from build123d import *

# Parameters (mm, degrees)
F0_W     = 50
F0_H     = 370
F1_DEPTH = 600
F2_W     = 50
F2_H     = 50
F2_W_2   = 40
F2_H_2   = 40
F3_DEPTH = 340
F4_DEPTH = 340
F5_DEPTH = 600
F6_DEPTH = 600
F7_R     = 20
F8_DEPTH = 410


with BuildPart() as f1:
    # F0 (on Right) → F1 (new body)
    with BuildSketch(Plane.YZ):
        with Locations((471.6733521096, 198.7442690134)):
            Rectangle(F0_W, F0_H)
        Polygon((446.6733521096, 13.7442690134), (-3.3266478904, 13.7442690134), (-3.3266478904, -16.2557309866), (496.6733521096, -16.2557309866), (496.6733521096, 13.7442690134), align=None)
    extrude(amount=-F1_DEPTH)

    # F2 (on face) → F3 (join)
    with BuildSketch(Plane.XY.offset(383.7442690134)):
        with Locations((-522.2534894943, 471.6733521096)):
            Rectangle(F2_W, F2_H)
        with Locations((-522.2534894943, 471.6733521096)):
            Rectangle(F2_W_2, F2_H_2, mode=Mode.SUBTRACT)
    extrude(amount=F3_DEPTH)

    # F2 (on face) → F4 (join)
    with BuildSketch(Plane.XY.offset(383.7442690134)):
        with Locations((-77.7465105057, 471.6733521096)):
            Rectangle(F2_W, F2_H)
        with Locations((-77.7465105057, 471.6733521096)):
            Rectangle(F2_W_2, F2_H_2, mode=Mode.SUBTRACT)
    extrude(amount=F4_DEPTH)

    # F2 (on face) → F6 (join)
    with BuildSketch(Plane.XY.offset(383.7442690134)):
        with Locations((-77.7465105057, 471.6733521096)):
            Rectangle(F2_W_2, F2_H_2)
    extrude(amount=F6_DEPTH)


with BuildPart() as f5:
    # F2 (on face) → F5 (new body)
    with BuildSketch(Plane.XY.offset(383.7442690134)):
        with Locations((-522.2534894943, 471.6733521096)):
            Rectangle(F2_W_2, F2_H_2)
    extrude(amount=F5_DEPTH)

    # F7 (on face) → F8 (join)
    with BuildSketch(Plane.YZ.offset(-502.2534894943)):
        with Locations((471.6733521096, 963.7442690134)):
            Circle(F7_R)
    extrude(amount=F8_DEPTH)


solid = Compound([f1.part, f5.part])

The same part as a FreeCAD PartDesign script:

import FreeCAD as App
import Part
import Sketcher

V = App.Vector


def add_polygon(sketch, points):
    """Adds a closed chain of lines whose ends are joined by coincident constraints."""
    first, n = sketch.GeometryCount, len(points)
    for a, b in zip(points, points[1:] + points[:1]):
        sketch.addGeometry(Part.LineSegment(App.Vector(*a, 0), App.Vector(*b, 0)), False)
    for i in range(n):
        sketch.addConstraint(Sketcher.Constraint("Coincident", first + i, 2, first + (i + 1) % n, 1))

doc = App.newDocument("Part")
body = doc.addObject("PartDesign::Body", "Body")

sketch1 = doc.addObject("Sketcher::SketchObject", "Sketch")
body.addObject(sketch1)
sketch1.AttachmentSupport = (doc.YZ_Plane, [""])
sketch1.MapMode = "FlatFace"
add_polygon(sketch1, [(447, 384), (447, 14), (-3, 14), (-3, -16), (497, -16), (497, 384)])
sketch1.addConstraint([
    Sketcher.Constraint("Vertical", 0),
    Sketcher.Constraint("Horizontal", 1),
    Sketcher.Constraint("Vertical", 2),
    Sketcher.Constraint("Horizontal", 3),
    Sketcher.Constraint("Vertical", 4),
    Sketcher.Constraint("Horizontal", 5),
    Sketcher.Constraint("DistanceX", 1, 2, 1, 1, 450.0),
    Sketcher.Constraint("DistanceX", 3, 1, 3, 2, 500.0),
    Sketcher.Constraint("DistanceY", 0, 2, 0, 1, 370.0),
    Sketcher.Constraint("DistanceY", 2, 2, 2, 1, 30.0),
    Sketcher.Constraint("DistanceY", -1, 1, 0, 2, 13.744269),
    Sketcher.Constraint("DistanceX", -1, 1, 0, 2, 446.673352),
])
pad1 = doc.addObject("PartDesign::Pad", "Pad")
body.addObject(pad1)
pad1.Profile = sketch1
pad1.Length = 600
pad1.Reversed = True

sketch2 = doc.addObject("Sketcher::SketchObject", "Sketch001")
body.addObject(sketch2)
sketch2.AttachmentSupport = (doc.XY_Plane, [""])
sketch2.MapMode = "FlatFace"
sketch2.AttachmentOffset = App.Placement(V(0, 0, 383.744269), App.Rotation())
add_polygon(sketch2, [(-547, 497), (-547, 447), (-497, 447), (-497, 497)])
add_polygon(sketch2, [(-502, 452), (-542, 452), (-542, 492), (-502, 492)])
sketch2.addConstraint([
    Sketcher.Constraint("Vertical", 0),
    Sketcher.Constraint("Horizontal", 1),
    Sketcher.Constraint("Vertical", 2),
    Sketcher.Constraint("Horizontal", 3),
    Sketcher.Constraint("Horizontal", 4),
    Sketcher.Constraint("Vertical", 5),
    Sketcher.Constraint("Horizontal", 6),
    Sketcher.Constraint("Vertical", 7),
    Sketcher.Constraint("Equal", 3, 0),
    Sketcher.Constraint("Equal", 6, 5),
    Sketcher.Constraint("DistanceX", 1, 1, 1, 2, 50.0),
    Sketcher.Constraint("DistanceX", 4, 2, 4, 1, 40.0),
    Sketcher.Constraint("DistanceX", 0, 2, 4, 2, 5.0),
    Sketcher.Constraint("DistanceY", 0, 2, 4, 2, 5.0),
    Sketcher.Constraint("DistanceX", 0, 2, -1, 1, 547.253489),
    Sketcher.Constraint("DistanceY", -1, 1, 0, 2, 446.673352),
])
pad2 = doc.addObject("PartDesign::Pad", "Pad001")
body.addObject(pad2)
pad2.Profile = sketch2
pad2.Length = 340

sketch3 = doc.addObject("Sketcher::SketchObject", "Sketch002")
body.addObject(sketch3)
sketch3.AttachmentSupport = (doc.XY_Plane, [""])
sketch3.MapMode = "FlatFace"
sketch3.AttachmentOffset = App.Placement(V(0, 0, 383.744269), App.Rotation())
add_polygon(sketch3, [(-103, 497), (-103, 447), (-53, 447), (-53, 497)])
add_polygon(sketch3, [(-58, 452), (-98, 452), (-98, 492), (-58, 492)])
sketch3.addConstraint([
    Sketcher.Constraint("Vertical", 0),
    Sketcher.Constraint("Horizontal", 1),
    Sketcher.Constraint("Vertical", 2),
    Sketcher.Constraint("Horizontal", 3),
    Sketcher.Constraint("Horizontal", 4),
    Sketcher.Constraint("Vertical", 5),
    Sketcher.Constraint("Horizontal", 6),
    Sketcher.Constraint("Vertical", 7),
    Sketcher.Constraint("Equal", 3, 0),
    Sketcher.Constraint("Equal", 6, 5),
    Sketcher.Constraint("DistanceX", 1, 1, 1, 2, 50.0),
    Sketcher.Constraint("DistanceX", 4, 2, 4, 1, 40.0),
    Sketcher.Constraint("DistanceX", 0, 2, 4, 2, 5.0),
    Sketcher.Constraint("DistanceY", 0, 2, 4, 2, 5.0),
    Sketcher.Constraint("DistanceX", 0, 2, -1, 1, 102.746511),
    Sketcher.Constraint("DistanceY", -1, 1, 0, 2, 446.673352),
])
pad3 = doc.addObject("PartDesign::Pad", "Pad002")
body.addObject(pad3)
pad3.Profile = sketch3
pad3.Length = 340

sketch4 = doc.addObject("Sketcher::SketchObject", "Sketch003")
body.addObject(sketch4)
sketch4.AttachmentSupport = (doc.XY_Plane, [""])
sketch4.MapMode = "FlatFace"
sketch4.AttachmentOffset = App.Placement(V(0, 0, 383.744269), App.Rotation())
add_polygon(sketch4, [(-98, 492), (-98, 452), (-58, 452), (-58, 492)])
sketch4.addConstraint([
    Sketcher.Constraint("Vertical", 0),
    Sketcher.Constraint("Horizontal", 1),
    Sketcher.Constraint("Vertical", 2),
    Sketcher.Constraint("Horizontal", 3),
    Sketcher.Constraint("Equal", 3, 0),
    Sketcher.Constraint("DistanceX", 1, 1, 1, 2, 40.0),
    Sketcher.Constraint("DistanceX", 0, 2, -1, 1, 97.746511),
    Sketcher.Constraint("DistanceY", -1, 1, 0, 2, 451.673352),
])
pad4 = doc.addObject("PartDesign::Pad", "Pad003")
body.addObject(pad4)
pad4.Profile = sketch4
pad4.Length = 600
body2 = doc.addObject("PartDesign::Body", "Body001")

sketch5 = doc.addObject("Sketcher::SketchObject", "Sketch004")
body2.addObject(sketch5)
sketch5.AttachmentSupport = (doc.getObject("XY_Plane001"), [""])
sketch5.MapMode = "FlatFace"
sketch5.AttachmentOffset = App.Placement(V(0, 0, 383.744269), App.Rotation())
add_polygon(sketch5, [(-542, 492), (-542, 452), (-502, 452), (-502, 492)])
sketch5.addConstraint([
    Sketcher.Constraint("Vertical", 0),
    Sketcher.Constraint("Horizontal", 1),
    Sketcher.Constraint("Vertical", 2),
    Sketcher.Constraint("Horizontal", 3),
    Sketcher.Constraint("Equal", 3, 0),
    Sketcher.Constraint("DistanceX", 1, 1, 1, 2, 40.0),
    Sketcher.Constraint("DistanceX", 0, 2, -1, 1, 542.253489),
    Sketcher.Constraint("DistanceY", -1, 1, 0, 2, 451.673352),
])
pad5 = doc.addObject("PartDesign::Pad", "Pad004")
body2.addObject(pad5)
pad5.Profile = sketch5
pad5.Length = 600

sketch6 = doc.addObject("Sketcher::SketchObject", "Sketch005")
body2.addObject(sketch6)
sketch6.AttachmentSupport = (doc.getObject("YZ_Plane001"), [""])
sketch6.MapMode = "FlatFace"
sketch6.AttachmentOffset = App.Placement(V(0, 0, -502.253489), App.Rotation())
sketch6.addGeometry(Part.Circle(V(472, 964, 0), V(0, 0, 1), 20), False)
sketch6.addConstraint([
    Sketcher.Constraint("Diameter", 0, 40.0),
    Sketcher.Constraint("DistanceY", -1, 1, 0, 3, 963.744269),
    Sketcher.Constraint("DistanceX", -1, 1, 0, 3, 471.673352),
])
pad6 = doc.addObject("PartDesign::Pad", "Pad005")
body2.addObject(pad6)
pad6.Profile = sketch6
pad6.Length = 410

doc.recompute()
